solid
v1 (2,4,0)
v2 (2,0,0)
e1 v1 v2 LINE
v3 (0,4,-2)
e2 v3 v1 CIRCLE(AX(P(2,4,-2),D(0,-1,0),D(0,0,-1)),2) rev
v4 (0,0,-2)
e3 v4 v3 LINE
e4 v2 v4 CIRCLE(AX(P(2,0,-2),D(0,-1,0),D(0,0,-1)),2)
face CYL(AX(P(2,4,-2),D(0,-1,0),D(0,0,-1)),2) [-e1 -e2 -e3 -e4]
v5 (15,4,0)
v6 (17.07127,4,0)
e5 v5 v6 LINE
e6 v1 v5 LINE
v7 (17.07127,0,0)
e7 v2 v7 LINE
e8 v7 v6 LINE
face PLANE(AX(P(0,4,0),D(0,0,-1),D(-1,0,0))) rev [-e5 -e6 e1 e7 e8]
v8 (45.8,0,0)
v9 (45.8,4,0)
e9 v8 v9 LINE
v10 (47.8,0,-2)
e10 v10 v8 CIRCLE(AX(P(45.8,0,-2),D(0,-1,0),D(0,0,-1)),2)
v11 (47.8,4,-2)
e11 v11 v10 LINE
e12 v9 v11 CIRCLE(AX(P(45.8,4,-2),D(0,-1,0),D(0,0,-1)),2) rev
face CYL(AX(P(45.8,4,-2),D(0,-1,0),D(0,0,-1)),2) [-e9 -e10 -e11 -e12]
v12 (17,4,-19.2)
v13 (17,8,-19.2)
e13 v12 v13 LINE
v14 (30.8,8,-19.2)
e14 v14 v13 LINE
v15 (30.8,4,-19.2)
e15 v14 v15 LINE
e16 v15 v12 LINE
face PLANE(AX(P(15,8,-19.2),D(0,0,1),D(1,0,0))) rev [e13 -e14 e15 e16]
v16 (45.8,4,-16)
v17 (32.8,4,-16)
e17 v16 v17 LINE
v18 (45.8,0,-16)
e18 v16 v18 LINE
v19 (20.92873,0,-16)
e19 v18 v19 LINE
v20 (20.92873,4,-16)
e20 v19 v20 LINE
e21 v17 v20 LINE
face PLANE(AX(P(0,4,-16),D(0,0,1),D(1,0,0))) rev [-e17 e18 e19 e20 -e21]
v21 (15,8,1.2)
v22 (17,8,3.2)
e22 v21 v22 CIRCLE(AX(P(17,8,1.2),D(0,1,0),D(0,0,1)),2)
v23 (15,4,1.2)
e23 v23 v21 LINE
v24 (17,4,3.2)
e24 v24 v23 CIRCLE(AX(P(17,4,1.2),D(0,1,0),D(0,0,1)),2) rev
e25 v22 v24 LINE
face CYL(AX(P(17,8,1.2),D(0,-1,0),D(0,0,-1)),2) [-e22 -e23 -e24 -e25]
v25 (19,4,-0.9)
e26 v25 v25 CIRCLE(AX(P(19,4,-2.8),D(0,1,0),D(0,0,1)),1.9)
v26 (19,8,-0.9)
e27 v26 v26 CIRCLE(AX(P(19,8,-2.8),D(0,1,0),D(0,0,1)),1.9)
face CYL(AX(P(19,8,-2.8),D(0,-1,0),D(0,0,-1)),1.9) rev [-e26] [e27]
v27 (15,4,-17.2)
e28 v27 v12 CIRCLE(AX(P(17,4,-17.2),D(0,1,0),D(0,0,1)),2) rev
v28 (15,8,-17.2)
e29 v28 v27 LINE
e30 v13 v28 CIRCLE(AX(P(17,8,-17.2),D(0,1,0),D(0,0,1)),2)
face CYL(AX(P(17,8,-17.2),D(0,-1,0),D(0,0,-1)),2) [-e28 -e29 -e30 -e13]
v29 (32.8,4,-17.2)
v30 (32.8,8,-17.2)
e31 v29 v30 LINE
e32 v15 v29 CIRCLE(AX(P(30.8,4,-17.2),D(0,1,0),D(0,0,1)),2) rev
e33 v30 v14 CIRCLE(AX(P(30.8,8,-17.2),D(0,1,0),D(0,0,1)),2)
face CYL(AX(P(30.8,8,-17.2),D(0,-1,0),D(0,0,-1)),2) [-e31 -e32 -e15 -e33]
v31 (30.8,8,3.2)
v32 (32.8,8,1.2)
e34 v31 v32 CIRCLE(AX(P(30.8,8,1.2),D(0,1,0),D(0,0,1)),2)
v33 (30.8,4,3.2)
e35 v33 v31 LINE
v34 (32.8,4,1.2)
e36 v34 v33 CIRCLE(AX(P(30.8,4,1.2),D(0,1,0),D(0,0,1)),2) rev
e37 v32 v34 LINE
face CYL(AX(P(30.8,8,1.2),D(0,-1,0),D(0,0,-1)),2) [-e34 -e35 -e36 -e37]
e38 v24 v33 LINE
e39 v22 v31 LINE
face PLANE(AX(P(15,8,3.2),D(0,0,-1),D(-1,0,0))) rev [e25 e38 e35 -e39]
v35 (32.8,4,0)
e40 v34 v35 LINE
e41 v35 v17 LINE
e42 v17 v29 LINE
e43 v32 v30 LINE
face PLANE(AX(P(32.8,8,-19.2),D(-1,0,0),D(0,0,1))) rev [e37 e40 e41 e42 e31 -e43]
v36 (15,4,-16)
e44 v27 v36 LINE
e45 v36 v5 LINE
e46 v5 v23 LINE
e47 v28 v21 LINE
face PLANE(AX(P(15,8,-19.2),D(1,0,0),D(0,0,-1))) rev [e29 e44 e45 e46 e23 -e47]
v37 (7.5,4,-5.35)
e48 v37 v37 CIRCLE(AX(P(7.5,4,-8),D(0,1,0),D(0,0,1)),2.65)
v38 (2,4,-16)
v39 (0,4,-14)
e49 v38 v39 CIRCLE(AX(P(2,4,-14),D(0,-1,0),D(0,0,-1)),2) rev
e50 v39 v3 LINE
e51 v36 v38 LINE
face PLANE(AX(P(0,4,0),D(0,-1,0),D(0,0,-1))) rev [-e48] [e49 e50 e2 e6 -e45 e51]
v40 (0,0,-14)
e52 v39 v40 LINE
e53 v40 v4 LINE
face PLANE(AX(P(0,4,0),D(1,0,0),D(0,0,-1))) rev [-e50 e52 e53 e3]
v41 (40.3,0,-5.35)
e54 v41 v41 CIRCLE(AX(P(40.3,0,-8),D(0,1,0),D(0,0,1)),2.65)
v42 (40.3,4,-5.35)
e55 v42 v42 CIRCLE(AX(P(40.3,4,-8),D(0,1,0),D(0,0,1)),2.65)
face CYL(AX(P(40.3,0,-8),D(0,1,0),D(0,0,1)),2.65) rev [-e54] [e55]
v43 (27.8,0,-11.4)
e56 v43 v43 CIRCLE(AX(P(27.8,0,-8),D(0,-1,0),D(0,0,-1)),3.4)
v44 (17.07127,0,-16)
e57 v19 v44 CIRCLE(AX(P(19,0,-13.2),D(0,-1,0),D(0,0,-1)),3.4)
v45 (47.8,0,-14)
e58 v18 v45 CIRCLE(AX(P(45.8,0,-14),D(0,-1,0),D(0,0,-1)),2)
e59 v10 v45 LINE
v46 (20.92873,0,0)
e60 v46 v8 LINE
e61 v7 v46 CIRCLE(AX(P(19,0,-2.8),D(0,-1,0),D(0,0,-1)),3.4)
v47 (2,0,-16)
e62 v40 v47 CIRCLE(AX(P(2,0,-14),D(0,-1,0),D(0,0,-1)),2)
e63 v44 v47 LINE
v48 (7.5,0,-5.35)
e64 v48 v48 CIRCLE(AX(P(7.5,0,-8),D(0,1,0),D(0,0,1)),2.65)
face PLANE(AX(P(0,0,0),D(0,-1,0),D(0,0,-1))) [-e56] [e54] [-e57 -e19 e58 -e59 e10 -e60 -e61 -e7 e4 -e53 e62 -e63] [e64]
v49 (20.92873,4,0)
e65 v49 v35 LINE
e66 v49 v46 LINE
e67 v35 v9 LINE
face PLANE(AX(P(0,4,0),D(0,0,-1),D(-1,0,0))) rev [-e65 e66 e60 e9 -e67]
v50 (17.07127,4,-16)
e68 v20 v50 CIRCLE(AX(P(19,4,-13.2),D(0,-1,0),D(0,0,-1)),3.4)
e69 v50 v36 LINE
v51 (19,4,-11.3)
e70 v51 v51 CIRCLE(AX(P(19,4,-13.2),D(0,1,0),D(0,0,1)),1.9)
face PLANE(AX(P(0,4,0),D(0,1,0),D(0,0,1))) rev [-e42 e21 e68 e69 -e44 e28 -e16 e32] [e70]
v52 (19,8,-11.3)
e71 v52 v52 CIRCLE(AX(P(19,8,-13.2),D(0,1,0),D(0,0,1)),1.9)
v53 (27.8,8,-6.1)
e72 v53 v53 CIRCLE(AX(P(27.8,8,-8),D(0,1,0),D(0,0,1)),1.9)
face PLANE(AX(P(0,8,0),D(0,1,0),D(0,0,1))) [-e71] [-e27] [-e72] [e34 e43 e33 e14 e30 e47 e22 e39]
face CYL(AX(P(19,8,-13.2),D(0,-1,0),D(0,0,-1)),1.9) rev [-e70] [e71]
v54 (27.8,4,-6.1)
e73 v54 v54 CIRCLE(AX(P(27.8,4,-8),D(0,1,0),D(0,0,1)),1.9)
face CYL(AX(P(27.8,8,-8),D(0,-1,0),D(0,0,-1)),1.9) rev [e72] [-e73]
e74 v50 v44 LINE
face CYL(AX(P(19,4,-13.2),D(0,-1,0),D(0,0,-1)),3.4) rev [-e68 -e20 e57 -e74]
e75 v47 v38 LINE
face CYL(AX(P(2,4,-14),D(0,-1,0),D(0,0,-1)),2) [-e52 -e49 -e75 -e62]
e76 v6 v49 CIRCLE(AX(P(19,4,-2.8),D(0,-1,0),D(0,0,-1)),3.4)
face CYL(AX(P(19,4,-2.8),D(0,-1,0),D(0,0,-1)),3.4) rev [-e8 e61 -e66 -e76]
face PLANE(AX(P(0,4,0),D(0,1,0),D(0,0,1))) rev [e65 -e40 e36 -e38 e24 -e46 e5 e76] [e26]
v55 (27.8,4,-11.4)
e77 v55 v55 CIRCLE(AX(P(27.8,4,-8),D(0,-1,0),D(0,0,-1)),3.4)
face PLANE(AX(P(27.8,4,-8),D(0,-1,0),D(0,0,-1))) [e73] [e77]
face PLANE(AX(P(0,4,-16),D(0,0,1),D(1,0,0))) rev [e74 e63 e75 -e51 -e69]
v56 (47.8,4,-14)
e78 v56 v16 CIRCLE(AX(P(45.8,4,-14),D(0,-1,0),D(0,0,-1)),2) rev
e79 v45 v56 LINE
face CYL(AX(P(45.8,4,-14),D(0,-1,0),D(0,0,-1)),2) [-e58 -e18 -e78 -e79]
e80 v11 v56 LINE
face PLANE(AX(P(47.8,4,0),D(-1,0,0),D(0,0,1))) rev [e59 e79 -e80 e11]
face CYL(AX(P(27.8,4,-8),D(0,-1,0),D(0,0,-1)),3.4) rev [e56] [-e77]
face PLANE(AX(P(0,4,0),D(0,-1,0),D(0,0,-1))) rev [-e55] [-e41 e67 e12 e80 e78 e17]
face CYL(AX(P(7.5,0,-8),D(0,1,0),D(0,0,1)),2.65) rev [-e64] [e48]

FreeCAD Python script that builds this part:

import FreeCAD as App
import Part
import Sketcher


def edges_at(feature, points):
    """Names of the edges that pass closest to the given points."""
    edges = feature.Shape.Edges
    near = lambda p: min(range(len(edges)), key=lambda i: edges[i].distToShape(Part.Vertex(*p))[0])
    return sorted({f"Edge{near(p) + 1}" for p in points})

doc = App.newDocument("Part")
body = doc.addObject("PartDesign::Body", "Body")

# Sketch on XZ plane
sketch1 = body.newObject("Sketcher::SketchObject", "Sketch")
sketch1.AttachmentSupport = (doc.getObject("XZ_Plane"), [""])
sketch1.MapMode = "FlatFace"
sketch1.addGeometry(Part.LineSegment(App.Vector(0, -16, 0), App.Vector(0, 0, 0)), False)
sketch1.addGeometry(Part.LineSegment(App.Vector(0, 0, 0), App.Vector(48, 0, 0)), False)
sketch1.addGeometry(Part.LineSegment(App.Vector(48, 0, 0), App.Vector(48, -16, 0)), False)
sketch1.addGeometry(Part.LineSegment(App.Vector(48, -16, 0), App.Vector(0, -16, 0)), False)
sketch1.addConstraint(Sketcher.Constraint("Coincident", 0, 2, 1, 1))
sketch1.addConstraint(Sketcher.Constraint("Coincident", 1, 2, 2, 1))
sketch1.addConstraint(Sketcher.Constraint("Coincident", 2, 2, 3, 1))
sketch1.addConstraint(Sketcher.Constraint("Coincident", 3, 2, 0, 1))
sketch1.addConstraint(Sketcher.Constraint("Vertical", 0))
sketch1.addConstraint(Sketcher.Constraint("Horizontal", 1))
sketch1.addConstraint(Sketcher.Constraint("Vertical", 2))
sketch1.addConstraint(Sketcher.Constraint("Horizontal", 3))
sketch1.addConstraint(Sketcher.Constraint("Coincident", 0, 2, -1, 1))
sketch1.addConstraint(Sketcher.Constraint("DistanceY", 0, 1, 0, 2, 16.0))
sketch1.addConstraint(Sketcher.Constraint("DistanceX", 1, 1, 1, 2, 47.8))
pad1 = body.newObject("PartDesign::Pad", "Pad")
pad1.Profile = sketch1
pad1.Length = 4
pad1.Reversed = True

# Sketch on XZ plane
sketch2 = body.newObject("Sketcher::SketchObject", "Sketch001")
sketch2.AttachmentSupport = (doc.getObject("XZ_Plane"), [""])
sketch2.MapMode = "FlatFace"
sketch2.AttachmentOffset = App.Placement(App.Vector(0, 0, -4), App.Rotation())
sketch2.addGeometry(Part.LineSegment(App.Vector(15, -19.2, 0), App.Vector(15, 3.2, 0)), False)
sketch2.addGeometry(Part.LineSegment(App.Vector(15, 3.2, 0), App.Vector(32.8, 3.2, 0)), False)
sketch2.addGeometry(Part.LineSegment(App.Vector(32.8, 3.2, 0), App.Vector(32.8, -19.2, 0)), False)
sketch2.addGeometry(Part.LineSegment(App.Vector(32.8, -19.2, 0), App.Vector(15, -19.2, 0)), False)
sketch2.addGeometry(Part.Circle(App.Vector(19, -2.8, 0), App.Vector(0, 0, 1), 1.9), False)
sketch2.addGeometry(Part.Circle(App.Vector(19, -13.2, 0), App.Vector(0, 0, 1), 1.9), False)
sketch2.addGeometry(Part.Circle(App.Vector(27.8, -8, 0), App.Vector(0, 0, 1), 1.9), False)
sketch2.addConstraint(Sketcher.Constraint("Coincident", 0, 2, 1, 1))
sketch2.addConstraint(Sketcher.Constraint("Coincident", 1, 2, 2, 1))
sketch2.addConstraint(Sketcher.Constraint("Coincident", 2, 2, 3, 1))
sketch2.addConstraint(Sketcher.Constraint("Coincident", 3, 2, 0, 1))
sketch2.addConstraint(Sketcher.Constraint("Vertical", 0))
sketch2.addConstraint(Sketcher.Constraint("Horizontal", 1))
sketch2.addConstraint(Sketcher.Constraint("Vertical", 2))
sketch2.addConstraint(Sketcher.Constraint("Horizontal", 3))
sketch2.addConstraint(Sketcher.Constraint("Equal", 4, 5))
sketch2.addConstraint(Sketcher.Constraint("Equal", 5, 6))
sketch2.addConstraint(Sketcher.Constraint("Vertical", 4, 3, 5, 3))
sketch2.addConstraint(Sketcher.Constraint("Diameter", 4, 3.8))
sketch2.addConstraint(Sketcher.Constraint("DistanceX", 1, 1, 1, 2, 17.8))
sketch2.addConstraint(Sketcher.Constraint("DistanceY", 0, 1, 0, 2, 22.4))
sketch2.addConstraint(Sketcher.Constraint("DistanceX", -1, 1, 4, 3, 19.0))
sketch2.addConstraint(Sketcher.Constraint("DistanceY", 6, 3, -1, 1, 8.0))
sketch2.addConstraint(Sketcher.Constraint("DistanceX", -1, 1, 0, 2, 15.0))
sketch2.addConstraint(Sketcher.Constraint("DistanceY", 4, 3, 0, 2, 6.0))
sketch2.addConstraint(Sketcher.Constraint("DistanceX", 6, 3, 1, 2, 5.0))
sketch2.addConstraint(Sketcher.Constraint("DistanceY", 2, 2, 5, 3, 6.0))
sketch2.addConstraint(Sketcher.Constraint("DistanceY", 4, 3, -1, 1, 2.8))
pad2 = body.newObject("PartDesign::Pad", "Pad001")
pad2.Profile = sketch2
pad2.Length = 4
pad2.Reversed = True

# Sketch on XZ plane
sketch3 = body.newObject("Sketcher::SketchObject", "Sketch002")
sketch3.AttachmentSupport = (doc.getObject("XZ_Plane"), [""])
sketch3.MapMode = "FlatFace"
sketch3.addGeometry(Part.Circle(App.Vector(19, -2.8, 0), App.Vector(0, 0, 1), 3.4), False)
sketch3.addGeometry(Part.Circle(App.Vector(27.8, -8, 0), App.Vector(0, 0, 1), 3.4), False)
sketch3.addGeometry(Part.Circle(App.Vector(19, -13.2, 0), App.Vector(0, 0, 1), 3.4), False)
sketch3.addConstraint(Sketcher.Constraint("Equal", 0, 1))
sketch3.addConstraint(Sketcher.Constraint("Equal", 1, 2))
sketch3.addConstraint(Sketcher.Constraint("Vertical", 0, 3, 2, 3))
sketch3.addConstraint(Sketcher.Constraint("Diameter", 0, 6.8))
sketch3.addConstraint(Sketcher.Constraint("DistanceX", -1, 1, 0, 3, 19.0))
sketch3.addConstraint(Sketcher.Constraint("DistanceY", 1, 3, -1, 1, 8.0))
sketch3.addConstraint(Sketcher.Constraint("DistanceY", 0, 3, -1, 1, 2.8))
sketch3.addConstraint(Sketcher.Constraint("DistanceX", -1, 1, 1, 3, 27.8))
sketch3.addConstraint(Sketcher.Constraint("DistanceY", 2, 3, -1, 1, 13.2))
pocket1 = body.newObject("PartDesign::Pocket", "Pocket")
pocket1.Profile = sketch3
pocket1.Length = 4

# Sketch on XZ plane
sketch4 = body.newObject("Sketcher::SketchObject", "Sketch003")
sketch4.AttachmentSupport = (doc.getObject("XZ_Plane"), [""])
sketch4.MapMode = "FlatFace"
sketch4.AttachmentOffset = App.Placement(App.Vector(0, 0, -4), App.Rotation())
sketch4.addGeometry(Part.Circle(App.Vector(7.5, -8, 0), App.Vector(0, 0, 1), 2.6), False)
sketch4.addGeometry(Part.Circle(App.Vector(40.3, -8, 0), App.Vector(0, 0, 1), 2.6), False)
sketch4.addConstraint(Sketcher.Constraint("Equal", 0, 1))
sketch4.addConstraint(Sketcher.Constraint("Horizontal", 0, 3, 1, 3))
sketch4.addConstraint(Sketcher.Constraint("Diameter", 0, 5.3))
sketch4.addConstraint(Sketcher.Constraint("DistanceY", 0, 3, -1, 1, 8.0))
sketch4.addConstraint(Sketcher.Constraint("DistanceX", -1, 1, 0, 3, 7.5))
sketch4.addConstraint(Sketcher.Constraint("DistanceX", -1, 1, 1, 3, 40.3))
pocket2 = body.newObject("PartDesign::Pocket", "Pocket001")
pocket2.Profile = sketch4
pocket2.Length = 4
pocket2.Reversed = True
doc.recompute()

fillet = body.newObject("PartDesign::Fillet", "Fillet")
fillet.Base = (pocket2, edges_at(pocket2, [
    (15, 6, -19.2),
    (15, 6, 3.2),
    (32.8, 6, 3.2),
    (32.8, 6, -19.2),
    (0, 2, -16),
    (47.8, 2, -16),
    (47.8, 2, 0),
    (0, 2, 0),
]))
fillet.Radius = 2

doc.recompute()
